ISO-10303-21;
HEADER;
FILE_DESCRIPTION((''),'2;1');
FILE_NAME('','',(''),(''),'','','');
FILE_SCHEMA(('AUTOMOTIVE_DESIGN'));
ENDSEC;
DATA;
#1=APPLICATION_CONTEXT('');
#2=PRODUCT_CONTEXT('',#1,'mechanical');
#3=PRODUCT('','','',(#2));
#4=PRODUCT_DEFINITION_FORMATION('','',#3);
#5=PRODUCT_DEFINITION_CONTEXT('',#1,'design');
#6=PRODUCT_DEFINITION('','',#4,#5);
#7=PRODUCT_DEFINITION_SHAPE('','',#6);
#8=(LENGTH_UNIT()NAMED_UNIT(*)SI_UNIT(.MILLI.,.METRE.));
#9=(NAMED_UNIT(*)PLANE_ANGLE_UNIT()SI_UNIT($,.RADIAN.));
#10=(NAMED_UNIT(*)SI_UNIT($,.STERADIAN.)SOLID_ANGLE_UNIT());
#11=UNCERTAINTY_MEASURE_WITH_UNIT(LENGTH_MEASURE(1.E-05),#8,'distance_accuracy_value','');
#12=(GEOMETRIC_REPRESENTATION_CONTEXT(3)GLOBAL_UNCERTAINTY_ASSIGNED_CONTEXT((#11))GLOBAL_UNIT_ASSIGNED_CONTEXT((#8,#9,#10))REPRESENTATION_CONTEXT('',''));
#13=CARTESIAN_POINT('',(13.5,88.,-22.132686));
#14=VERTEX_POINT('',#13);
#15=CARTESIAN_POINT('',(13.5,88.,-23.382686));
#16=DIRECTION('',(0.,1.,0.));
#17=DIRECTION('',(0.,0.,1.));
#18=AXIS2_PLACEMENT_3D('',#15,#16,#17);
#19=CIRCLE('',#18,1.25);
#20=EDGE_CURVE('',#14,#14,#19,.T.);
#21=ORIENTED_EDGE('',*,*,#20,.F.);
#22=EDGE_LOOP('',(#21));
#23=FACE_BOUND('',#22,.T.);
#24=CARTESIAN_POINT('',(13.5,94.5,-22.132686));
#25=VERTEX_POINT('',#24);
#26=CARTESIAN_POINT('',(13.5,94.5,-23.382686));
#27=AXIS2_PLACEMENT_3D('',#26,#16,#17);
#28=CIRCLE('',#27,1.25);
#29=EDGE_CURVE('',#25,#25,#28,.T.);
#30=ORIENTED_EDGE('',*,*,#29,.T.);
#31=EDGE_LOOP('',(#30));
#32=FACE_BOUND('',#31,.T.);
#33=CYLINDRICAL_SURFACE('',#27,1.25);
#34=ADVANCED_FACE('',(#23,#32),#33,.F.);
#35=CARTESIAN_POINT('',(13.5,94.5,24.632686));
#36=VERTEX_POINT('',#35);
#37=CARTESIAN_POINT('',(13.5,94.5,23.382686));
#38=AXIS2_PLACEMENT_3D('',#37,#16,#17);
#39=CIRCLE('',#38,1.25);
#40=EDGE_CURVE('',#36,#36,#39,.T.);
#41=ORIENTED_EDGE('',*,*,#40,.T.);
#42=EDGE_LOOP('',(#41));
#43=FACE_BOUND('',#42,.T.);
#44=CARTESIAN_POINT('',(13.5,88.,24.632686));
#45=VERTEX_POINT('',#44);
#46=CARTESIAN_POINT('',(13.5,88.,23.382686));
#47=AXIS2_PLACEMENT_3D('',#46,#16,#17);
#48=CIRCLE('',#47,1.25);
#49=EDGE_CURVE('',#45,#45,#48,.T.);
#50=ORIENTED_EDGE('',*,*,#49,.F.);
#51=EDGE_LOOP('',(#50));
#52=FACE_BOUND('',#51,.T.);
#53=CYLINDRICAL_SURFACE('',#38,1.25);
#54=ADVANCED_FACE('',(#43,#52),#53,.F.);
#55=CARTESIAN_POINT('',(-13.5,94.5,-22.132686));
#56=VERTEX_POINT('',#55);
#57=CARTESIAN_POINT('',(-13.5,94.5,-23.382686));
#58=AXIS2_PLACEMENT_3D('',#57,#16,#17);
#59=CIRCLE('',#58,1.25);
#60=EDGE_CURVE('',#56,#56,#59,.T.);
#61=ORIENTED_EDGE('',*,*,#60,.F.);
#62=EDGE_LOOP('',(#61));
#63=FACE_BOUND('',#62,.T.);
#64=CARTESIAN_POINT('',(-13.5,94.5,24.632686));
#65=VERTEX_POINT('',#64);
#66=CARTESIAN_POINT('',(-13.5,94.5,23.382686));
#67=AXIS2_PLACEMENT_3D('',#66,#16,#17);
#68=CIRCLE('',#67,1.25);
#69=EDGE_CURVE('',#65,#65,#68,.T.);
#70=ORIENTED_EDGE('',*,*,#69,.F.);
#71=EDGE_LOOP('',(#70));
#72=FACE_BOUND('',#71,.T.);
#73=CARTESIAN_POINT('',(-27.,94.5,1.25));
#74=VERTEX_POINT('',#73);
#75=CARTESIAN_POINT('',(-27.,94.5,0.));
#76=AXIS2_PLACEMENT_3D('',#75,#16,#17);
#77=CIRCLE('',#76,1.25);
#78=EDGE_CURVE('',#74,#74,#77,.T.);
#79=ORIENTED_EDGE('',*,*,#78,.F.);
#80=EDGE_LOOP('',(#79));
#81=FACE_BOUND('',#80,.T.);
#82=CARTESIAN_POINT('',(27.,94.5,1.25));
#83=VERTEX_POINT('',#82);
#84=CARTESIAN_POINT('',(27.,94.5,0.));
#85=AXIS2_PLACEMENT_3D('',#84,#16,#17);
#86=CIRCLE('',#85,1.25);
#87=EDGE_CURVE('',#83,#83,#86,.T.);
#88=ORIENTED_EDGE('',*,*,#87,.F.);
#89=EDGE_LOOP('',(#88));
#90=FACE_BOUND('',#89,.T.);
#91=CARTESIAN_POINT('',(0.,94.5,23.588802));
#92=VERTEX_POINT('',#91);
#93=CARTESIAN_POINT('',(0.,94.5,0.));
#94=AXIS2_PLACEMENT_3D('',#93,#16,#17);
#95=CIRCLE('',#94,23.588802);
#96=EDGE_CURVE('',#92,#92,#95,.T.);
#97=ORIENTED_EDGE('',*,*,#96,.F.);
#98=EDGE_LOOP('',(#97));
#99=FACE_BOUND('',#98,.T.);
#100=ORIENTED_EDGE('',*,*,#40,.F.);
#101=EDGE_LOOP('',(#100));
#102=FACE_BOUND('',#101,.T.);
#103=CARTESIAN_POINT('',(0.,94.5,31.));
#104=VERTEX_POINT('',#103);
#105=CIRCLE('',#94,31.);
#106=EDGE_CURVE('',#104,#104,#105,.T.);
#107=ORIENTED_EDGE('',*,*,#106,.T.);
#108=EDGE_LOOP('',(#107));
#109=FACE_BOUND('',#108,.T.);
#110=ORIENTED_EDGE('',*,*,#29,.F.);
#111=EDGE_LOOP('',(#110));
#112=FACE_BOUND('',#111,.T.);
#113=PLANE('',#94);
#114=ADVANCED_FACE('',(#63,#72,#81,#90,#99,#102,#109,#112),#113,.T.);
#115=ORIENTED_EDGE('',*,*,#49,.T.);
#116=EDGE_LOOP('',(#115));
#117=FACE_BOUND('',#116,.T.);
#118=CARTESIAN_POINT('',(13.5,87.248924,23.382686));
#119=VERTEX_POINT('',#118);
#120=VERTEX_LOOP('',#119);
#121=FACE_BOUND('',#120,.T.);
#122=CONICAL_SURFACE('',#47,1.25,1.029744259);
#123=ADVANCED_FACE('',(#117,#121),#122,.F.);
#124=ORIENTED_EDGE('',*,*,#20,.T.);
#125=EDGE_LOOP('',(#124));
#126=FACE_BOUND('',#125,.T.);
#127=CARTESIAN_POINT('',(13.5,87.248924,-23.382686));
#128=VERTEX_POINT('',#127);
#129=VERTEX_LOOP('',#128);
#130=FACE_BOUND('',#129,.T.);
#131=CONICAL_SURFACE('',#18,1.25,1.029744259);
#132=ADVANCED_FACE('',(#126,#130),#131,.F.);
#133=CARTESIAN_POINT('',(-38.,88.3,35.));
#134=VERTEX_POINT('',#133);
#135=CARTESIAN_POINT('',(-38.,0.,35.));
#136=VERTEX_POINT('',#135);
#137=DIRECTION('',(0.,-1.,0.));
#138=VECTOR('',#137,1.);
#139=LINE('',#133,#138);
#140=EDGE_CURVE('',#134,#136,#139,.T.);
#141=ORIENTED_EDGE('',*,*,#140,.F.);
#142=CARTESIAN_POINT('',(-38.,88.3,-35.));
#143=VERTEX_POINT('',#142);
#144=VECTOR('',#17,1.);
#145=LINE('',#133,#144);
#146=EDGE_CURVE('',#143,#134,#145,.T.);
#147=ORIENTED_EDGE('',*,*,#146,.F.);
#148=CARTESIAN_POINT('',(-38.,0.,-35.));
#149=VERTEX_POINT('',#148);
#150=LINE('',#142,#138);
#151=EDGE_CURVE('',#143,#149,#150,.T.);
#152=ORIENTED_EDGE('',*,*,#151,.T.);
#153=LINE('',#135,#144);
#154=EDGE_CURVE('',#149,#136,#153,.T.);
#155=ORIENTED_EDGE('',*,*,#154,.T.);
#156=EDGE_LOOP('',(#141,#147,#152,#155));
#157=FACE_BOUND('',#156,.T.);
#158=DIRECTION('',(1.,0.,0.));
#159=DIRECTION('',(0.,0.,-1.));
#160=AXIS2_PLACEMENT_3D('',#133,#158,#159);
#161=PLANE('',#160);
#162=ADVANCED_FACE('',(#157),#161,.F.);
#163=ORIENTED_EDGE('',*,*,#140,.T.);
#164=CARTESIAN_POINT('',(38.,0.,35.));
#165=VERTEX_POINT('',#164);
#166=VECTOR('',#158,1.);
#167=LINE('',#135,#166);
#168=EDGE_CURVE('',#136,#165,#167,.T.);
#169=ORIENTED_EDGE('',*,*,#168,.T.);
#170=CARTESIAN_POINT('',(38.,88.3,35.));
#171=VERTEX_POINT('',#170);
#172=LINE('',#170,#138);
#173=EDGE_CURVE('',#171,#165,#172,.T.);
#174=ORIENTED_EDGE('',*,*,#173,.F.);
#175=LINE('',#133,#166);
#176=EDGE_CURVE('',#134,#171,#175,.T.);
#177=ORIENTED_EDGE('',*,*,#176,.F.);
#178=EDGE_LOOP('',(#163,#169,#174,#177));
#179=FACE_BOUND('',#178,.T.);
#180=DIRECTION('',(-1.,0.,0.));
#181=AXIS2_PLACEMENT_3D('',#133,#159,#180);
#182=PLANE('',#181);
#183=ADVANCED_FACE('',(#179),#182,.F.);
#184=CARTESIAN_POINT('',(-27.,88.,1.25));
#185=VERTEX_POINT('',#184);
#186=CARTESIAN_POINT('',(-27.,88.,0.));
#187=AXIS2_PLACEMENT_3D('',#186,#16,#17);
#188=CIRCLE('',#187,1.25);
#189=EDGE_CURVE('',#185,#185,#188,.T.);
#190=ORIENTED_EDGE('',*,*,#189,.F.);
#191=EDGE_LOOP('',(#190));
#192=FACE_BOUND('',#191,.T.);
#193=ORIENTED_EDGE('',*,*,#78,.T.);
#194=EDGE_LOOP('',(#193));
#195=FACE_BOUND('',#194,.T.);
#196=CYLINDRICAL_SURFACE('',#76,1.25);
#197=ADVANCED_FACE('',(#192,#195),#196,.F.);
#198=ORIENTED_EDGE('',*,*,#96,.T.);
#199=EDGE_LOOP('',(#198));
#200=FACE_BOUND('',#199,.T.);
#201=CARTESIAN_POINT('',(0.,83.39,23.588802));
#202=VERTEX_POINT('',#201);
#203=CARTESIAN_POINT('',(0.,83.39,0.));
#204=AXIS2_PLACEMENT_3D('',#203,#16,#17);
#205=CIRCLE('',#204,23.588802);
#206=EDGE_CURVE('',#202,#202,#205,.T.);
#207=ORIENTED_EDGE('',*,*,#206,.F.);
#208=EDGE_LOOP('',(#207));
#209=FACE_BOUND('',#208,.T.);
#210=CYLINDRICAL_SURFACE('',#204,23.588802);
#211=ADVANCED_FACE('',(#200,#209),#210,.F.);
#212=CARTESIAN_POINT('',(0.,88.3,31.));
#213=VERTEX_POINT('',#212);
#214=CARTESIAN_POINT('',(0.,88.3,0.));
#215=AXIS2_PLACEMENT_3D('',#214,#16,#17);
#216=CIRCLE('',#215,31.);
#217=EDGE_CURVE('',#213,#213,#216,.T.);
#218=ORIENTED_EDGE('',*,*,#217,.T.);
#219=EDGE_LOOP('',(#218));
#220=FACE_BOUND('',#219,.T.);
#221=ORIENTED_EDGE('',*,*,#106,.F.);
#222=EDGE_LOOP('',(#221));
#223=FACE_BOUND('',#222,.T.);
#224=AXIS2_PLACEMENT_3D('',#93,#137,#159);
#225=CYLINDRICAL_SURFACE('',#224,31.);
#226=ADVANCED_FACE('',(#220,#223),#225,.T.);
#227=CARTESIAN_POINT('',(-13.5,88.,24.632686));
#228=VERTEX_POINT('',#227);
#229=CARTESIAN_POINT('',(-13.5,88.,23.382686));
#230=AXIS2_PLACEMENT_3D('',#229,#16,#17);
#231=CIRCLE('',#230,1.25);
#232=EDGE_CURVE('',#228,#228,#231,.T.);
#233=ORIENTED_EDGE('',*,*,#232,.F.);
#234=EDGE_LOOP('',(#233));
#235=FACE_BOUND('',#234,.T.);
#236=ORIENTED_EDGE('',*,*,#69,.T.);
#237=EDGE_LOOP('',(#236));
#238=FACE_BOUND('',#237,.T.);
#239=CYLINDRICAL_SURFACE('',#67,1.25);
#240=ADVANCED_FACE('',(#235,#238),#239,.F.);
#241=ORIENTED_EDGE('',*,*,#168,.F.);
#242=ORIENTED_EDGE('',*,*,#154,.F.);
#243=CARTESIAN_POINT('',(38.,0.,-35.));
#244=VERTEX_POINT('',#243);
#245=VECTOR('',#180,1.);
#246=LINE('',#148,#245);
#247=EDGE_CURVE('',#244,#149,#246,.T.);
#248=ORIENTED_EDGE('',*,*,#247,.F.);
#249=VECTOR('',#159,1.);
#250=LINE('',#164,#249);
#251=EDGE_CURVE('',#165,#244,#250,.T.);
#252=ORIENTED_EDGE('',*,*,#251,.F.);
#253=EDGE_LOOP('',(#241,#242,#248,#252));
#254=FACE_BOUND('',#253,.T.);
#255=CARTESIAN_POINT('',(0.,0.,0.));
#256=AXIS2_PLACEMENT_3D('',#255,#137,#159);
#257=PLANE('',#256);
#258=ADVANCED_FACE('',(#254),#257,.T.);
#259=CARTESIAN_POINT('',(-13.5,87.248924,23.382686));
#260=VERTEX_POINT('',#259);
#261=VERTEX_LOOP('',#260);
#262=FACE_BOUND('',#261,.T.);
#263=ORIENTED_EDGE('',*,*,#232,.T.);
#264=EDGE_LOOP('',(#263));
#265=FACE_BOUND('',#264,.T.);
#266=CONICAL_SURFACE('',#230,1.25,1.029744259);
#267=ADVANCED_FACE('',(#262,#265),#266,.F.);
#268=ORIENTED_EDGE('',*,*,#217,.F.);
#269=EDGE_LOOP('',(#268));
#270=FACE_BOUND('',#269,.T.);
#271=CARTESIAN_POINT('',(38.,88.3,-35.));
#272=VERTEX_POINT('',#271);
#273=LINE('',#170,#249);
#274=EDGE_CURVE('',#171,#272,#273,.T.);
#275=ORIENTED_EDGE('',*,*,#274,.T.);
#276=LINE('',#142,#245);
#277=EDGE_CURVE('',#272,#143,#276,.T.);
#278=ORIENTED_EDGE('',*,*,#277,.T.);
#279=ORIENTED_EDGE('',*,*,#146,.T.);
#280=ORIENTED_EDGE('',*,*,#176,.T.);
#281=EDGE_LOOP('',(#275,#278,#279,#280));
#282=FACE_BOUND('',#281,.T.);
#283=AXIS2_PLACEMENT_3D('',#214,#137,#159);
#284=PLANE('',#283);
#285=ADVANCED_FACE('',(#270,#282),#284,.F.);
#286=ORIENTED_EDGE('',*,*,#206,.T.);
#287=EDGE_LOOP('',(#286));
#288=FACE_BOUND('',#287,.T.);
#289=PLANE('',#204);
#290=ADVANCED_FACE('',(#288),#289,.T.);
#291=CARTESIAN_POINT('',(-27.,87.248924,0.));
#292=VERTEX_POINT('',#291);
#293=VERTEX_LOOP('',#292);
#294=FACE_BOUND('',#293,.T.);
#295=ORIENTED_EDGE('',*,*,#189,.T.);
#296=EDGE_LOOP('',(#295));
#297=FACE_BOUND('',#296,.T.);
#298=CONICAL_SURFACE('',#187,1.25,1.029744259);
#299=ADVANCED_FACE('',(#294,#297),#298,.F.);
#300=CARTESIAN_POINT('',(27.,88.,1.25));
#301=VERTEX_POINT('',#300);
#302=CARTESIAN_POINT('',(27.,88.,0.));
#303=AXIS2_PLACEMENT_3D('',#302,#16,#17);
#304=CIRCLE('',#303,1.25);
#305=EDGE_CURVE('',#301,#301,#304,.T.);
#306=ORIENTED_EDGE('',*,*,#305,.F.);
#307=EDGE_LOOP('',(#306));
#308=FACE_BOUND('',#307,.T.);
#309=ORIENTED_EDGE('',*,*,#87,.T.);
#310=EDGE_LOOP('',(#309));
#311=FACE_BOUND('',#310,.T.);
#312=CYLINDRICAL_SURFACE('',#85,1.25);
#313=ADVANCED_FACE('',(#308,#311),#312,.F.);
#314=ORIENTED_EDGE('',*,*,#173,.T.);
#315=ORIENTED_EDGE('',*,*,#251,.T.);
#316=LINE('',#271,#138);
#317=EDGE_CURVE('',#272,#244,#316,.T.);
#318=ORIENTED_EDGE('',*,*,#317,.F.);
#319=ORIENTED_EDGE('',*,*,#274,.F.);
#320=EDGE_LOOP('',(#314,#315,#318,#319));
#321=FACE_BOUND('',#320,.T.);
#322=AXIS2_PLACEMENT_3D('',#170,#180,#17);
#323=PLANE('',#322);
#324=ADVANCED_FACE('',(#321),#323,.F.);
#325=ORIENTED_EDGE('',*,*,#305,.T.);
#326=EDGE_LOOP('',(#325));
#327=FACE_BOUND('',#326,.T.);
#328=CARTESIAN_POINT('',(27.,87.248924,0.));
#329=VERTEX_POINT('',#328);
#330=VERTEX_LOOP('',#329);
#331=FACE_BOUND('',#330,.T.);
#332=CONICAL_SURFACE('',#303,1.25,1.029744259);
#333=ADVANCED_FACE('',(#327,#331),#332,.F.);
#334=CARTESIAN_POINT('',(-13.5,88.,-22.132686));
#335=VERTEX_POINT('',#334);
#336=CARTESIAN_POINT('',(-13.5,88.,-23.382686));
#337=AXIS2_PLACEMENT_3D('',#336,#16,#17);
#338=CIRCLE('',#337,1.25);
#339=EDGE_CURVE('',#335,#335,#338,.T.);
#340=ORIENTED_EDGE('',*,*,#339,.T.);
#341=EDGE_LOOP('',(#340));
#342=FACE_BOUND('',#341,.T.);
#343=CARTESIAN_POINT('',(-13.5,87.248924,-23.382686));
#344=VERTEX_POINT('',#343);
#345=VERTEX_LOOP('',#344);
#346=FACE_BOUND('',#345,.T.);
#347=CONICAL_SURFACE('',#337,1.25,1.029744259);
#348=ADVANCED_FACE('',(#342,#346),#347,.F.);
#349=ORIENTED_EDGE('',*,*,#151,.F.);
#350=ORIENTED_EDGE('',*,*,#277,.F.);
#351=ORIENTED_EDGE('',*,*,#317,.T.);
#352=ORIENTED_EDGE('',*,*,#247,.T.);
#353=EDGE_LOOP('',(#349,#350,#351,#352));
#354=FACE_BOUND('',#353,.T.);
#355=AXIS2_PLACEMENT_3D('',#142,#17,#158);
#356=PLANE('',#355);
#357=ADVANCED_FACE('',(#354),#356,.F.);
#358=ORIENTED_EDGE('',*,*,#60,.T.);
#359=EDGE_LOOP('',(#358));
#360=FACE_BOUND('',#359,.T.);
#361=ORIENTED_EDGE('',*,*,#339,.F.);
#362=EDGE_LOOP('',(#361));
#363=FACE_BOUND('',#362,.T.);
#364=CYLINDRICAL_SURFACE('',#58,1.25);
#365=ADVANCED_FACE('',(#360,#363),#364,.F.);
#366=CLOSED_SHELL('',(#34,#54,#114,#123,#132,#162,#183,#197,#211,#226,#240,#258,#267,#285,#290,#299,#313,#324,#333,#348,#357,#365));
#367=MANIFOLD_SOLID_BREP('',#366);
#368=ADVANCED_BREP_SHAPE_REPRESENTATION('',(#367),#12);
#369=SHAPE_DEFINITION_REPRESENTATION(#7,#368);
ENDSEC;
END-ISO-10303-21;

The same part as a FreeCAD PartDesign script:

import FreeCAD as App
import Part
import Sketcher
from FreeCAD import Vector
Q = App.Units.Quantity

doc = App.newDocument("Part")
body = doc.addObject("PartDesign::Body", "Body")

# Sketch on XZ plane
sketch1 = body.newObject("Sketcher::SketchObject", "Sketch")
sketch1.AttachmentSupport = (doc.getObject("XZ_Plane"), [""])
sketch1.MapMode = "FlatFace"
sketch1.addGeometry([
    Part.LineSegment(Vector(-38, -35, 0), Vector(-38, 35, 0)),
    Part.LineSegment(Vector(-38, 35, 0), Vector(38, 35, 0)),
    Part.LineSegment(Vector(38, 35, 0), Vector(38, -35, 0)),
    Part.LineSegment(Vector(38, -35, 0), Vector(-38, -35, 0)),
], False)
sketch1.addConstraint([
    Sketcher.Constraint("Coincident", 0, 2, 1, 1),
    Sketcher.Constraint("Coincident", 1, 2, 2, 1),
    Sketcher.Constraint("Coincident", 2, 2, 3, 1),
    Sketcher.Constraint("Coincident", 3, 2, 0, 1),
    Sketcher.Constraint("Vertical", 0),
    Sketcher.Constraint("Horizontal", 1),
    Sketcher.Constraint("Vertical", 2),
    Sketcher.Constraint("Horizontal", 3),
    Sketcher.Constraint("Symmetric", 0, 2, 2, 2, -1, 1),
    Sketcher.Constraint("DistanceX", 1, 1, 1, 2, 76.0),
    Sketcher.Constraint("DistanceY", 0, 1, 0, 2, 70.0),
])
pad1 = body.newObject("PartDesign::Pad", "Pad")
pad1.Profile = sketch1
pad1.Length = 88.3
pad1.Reversed = True

# Sketch on XZ plane
sketch2 = body.newObject("Sketcher::SketchObject", "Sketch001")
sketch2.AttachmentSupport = (doc.getObject("XZ_Plane"), [""])
sketch2.MapMode = "FlatFace"
sketch2.AttachmentOffset = App.Placement(Vector(0, 0, -88.3), App.Rotation())
sketch2.addGeometry(Part.Circle(Vector(0, 0, 0), Vector(0, 0, 1), 31), False)
sketch2.addConstraint([
    Sketcher.Constraint("Coincident", 0, 3, -1, 1),
    Sketcher.Constraint("Diameter", 0, 62.0),
])
pad2 = body.newObject("PartDesign::Pad", "Pad001")
pad2.Profile = sketch2
pad2.Length = 6.2
pad2.Reversed = True

# Sketch on YZ plane
sketch3 = body.newObject("Sketcher::SketchObject", "Sketch002")
sketch3.AttachmentSupport = (doc.getObject("YZ_Plane"), [""])
sketch3.MapMode = "FlatFace"
sketch3.AttachmentOffset = App.Placement(Vector(0, 0, 27), App.Rotation())
sketch3.addGeometry([
    Part.LineSegment(Vector(87.2, 0, 0), Vector(94.5, 0, 0)),
    Part.LineSegment(Vector(94.5, 0, 0), Vector(94.5, 1.2, 0)),
    Part.LineSegment(Vector(94.5, 1.2, 0), Vector(88, 1.2, 0)),
    Part.LineSegment(Vector(88, 1.2, 0), Vector(87.2, 0, 0)),
], False)
sketch3.addConstraint([
    Sketcher.Constraint("Coincident", 0, 2, 1, 1),
    Sketcher.Constraint("Coincident", 1, 2, 2, 1),
    Sketcher.Constraint("Coincident", 2, 2, 3, 1),
    Sketcher.Constraint("Coincident", 3, 2, 0, 1),
    Sketcher.Constraint("Horizontal", 0),
    Sketcher.Constraint("Vertical", 1),
    Sketcher.Constraint("Horizontal", 2),
    Sketcher.Constraint("PointOnObject", 0, 2, -1),
    Sketcher.Constraint("Angle", 3, Q("-121 deg")),
    Sketcher.Constraint("DistanceX", 2, 2, 2, 1, 6.5),
    Sketcher.Constraint("DistanceX", -1, 1, 2, 2, 88.0),
    Sketcher.Constraint("DistanceY", 1, 1, 1, 2, 1.25),
])
groove = body.newObject("PartDesign::Groove", "Groove")
groove.Profile = sketch3
groove.ReferenceAxis = (sketch3, ["H_Axis"])
groove.Angle = 360
doc.recompute()

polarpattern = body.newObject("PartDesign::PolarPattern", "PolarPattern")
polarpattern.Originals = [groove]
polarpattern.Axis = (doc.getObject("Y_Axis"), [""])
polarpattern.Angle = 360
polarpattern.Occurrences = 6
body.Tip = polarpattern

# Sketch on XZ plane
sketch4 = body.newObject("Sketcher::SketchObject", "Sketch003")
sketch4.AttachmentSupport = (doc.getObject("XZ_Plane"), [""])
sketch4.MapMode = "FlatFace"
sketch4.AttachmentOffset = App.Placement(Vector(0, 0, -94.5), App.Rotation())
sketch4.addGeometry(Part.Circle(Vector(0, 0, 0), Vector(0, 0, 1), 24), False)
sketch4.addConstraint([
    Sketcher.Constraint("Coincident", 0, 3, -1, 1),
    Sketcher.Constraint("Diameter", 0, 47.177605),
])
pocket1 = body.newObject("PartDesign::Pocket", "Pocket")
pocket1.Profile = sketch4
pocket1.Length = 11.11
pocket1.Reversed = True

doc.recompute()
